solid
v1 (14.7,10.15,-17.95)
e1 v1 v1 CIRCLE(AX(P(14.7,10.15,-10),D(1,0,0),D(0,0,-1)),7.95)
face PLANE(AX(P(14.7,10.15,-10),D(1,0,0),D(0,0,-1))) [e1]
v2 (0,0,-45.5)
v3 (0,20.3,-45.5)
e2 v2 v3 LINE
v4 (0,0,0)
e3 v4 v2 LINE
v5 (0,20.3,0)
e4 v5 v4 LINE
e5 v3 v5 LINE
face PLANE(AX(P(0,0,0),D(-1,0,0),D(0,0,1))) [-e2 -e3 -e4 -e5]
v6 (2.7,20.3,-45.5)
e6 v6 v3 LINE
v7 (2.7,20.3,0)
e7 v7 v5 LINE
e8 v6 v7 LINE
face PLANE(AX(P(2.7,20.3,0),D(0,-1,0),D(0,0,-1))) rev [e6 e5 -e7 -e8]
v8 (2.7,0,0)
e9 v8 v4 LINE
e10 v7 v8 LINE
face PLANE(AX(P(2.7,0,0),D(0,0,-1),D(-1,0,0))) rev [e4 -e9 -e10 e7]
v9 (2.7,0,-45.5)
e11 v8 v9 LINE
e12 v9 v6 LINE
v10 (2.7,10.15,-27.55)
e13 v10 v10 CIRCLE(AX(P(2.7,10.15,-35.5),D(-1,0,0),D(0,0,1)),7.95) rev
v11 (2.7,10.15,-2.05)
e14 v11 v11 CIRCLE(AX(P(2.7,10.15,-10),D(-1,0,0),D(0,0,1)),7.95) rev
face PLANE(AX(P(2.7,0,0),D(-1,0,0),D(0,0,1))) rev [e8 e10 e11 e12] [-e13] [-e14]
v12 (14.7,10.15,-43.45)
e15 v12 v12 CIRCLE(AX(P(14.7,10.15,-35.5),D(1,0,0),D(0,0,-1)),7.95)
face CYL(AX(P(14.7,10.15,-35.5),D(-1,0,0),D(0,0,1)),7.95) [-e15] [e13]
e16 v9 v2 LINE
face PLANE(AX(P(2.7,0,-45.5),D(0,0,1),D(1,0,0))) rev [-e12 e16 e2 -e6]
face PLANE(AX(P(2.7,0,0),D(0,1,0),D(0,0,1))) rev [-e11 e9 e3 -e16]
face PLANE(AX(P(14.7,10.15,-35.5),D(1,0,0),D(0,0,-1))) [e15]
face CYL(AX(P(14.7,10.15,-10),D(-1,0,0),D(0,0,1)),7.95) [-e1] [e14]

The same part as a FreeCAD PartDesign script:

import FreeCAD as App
import Part
import Sketcher
from FreeCAD import Vector


def add_polygon(sketch, points):
    """Adds a closed chain of lines whose ends are joined by coincident constraints."""
    first, n = sketch.GeometryCount, len(points)
    for a, b in zip(points, points[1:] + points[:1]):
        sketch.addGeometry(Part.LineSegment(App.Vector(*a, 0), App.Vector(*b, 0)), False)
    for i in range(n):
        sketch.addConstraint(Sketcher.Constraint("Coincident", first + i, 2, first + (i + 1) % n, 1))

doc = App.newDocument("Part")
body = doc.addObject("PartDesign::Body", "Body")

# Sketch on YZ plane
sketch1 = doc.addObject("Sketcher::SketchObject", "Sketch")
body.addObject(sketch1)
sketch1.AttachmentSupport = (doc.YZ_Plane, [""])
sketch1.MapMode = "FlatFace"
add_polygon(sketch1, [(20.3, 0), (0, 0), (0, -45.5), (20.3, -45.5)])  # lines 0-3
sketch1.addConstraint(Sketcher.Constraint("Horizontal", 0))
sketch1.addConstraint(Sketcher.Constraint("Vertical", 1))
sketch1.addConstraint(Sketcher.Constraint("Horizontal", 2))
sketch1.addConstraint(Sketcher.Constraint("Vertical", 3))
sketch1.addConstraint(Sketcher.Constraint("Coincident", 0, 2, -1, 1))
sketch1.addConstraint(Sketcher.Constraint("DistanceX", 0, 2, 0, 1, 20.3))
sketch1.addConstraint(Sketcher.Constraint("DistanceY", 1, 2, 1, 1, 45.5))
pad1 = doc.addObject("PartDesign::Pad", "Pad")
body.addObject(pad1)
pad1.Profile = sketch1
pad1.Length = 2.7

# Sketch on YZ plane
sketch2 = doc.addObject("Sketcher::SketchObject", "Sketch001")
body.addObject(sketch2)
sketch2.AttachmentSupport = (doc.YZ_Plane, [""])
sketch2.MapMode = "FlatFace"
sketch2.AttachmentOffset = App.Placement(Vector(0, 0, 2.7), App.Rotation())
sketch2.addGeometry(Part.Circle(Vector(10.15, -10, 0), Vector(0, 0, 1), 7.95), False)
sketch2.addGeometry(Part.Circle(Vector(10.15, -35.5, 0), Vector(0, 0, 1), 7.95), False)
sketch2.addConstraint(Sketcher.Constraint("Equal", 0, 1))
sketch2.addConstraint(Sketcher.Constraint("Vertical", 0, 3, 1, 3))
sketch2.addConstraint(Sketcher.Constraint("Diameter", 0, 15.9))
sketch2.addConstraint(Sketcher.Constraint("DistanceY", 0, 3, -1, 1, 10.0))
sketch2.addConstraint(Sketcher.Constraint("DistanceY", 1, 3, -1, 1, 35.5))
sketch2.addConstraint(Sketcher.Constraint("DistanceX", -1, 1, 0, 3, 10.15))
pad2 = doc.addObject("PartDesign::Pad", "Pad001")
body.addObject(pad2)
pad2.Profile = sketch2
pad2.Length = 12

doc.recompute()
